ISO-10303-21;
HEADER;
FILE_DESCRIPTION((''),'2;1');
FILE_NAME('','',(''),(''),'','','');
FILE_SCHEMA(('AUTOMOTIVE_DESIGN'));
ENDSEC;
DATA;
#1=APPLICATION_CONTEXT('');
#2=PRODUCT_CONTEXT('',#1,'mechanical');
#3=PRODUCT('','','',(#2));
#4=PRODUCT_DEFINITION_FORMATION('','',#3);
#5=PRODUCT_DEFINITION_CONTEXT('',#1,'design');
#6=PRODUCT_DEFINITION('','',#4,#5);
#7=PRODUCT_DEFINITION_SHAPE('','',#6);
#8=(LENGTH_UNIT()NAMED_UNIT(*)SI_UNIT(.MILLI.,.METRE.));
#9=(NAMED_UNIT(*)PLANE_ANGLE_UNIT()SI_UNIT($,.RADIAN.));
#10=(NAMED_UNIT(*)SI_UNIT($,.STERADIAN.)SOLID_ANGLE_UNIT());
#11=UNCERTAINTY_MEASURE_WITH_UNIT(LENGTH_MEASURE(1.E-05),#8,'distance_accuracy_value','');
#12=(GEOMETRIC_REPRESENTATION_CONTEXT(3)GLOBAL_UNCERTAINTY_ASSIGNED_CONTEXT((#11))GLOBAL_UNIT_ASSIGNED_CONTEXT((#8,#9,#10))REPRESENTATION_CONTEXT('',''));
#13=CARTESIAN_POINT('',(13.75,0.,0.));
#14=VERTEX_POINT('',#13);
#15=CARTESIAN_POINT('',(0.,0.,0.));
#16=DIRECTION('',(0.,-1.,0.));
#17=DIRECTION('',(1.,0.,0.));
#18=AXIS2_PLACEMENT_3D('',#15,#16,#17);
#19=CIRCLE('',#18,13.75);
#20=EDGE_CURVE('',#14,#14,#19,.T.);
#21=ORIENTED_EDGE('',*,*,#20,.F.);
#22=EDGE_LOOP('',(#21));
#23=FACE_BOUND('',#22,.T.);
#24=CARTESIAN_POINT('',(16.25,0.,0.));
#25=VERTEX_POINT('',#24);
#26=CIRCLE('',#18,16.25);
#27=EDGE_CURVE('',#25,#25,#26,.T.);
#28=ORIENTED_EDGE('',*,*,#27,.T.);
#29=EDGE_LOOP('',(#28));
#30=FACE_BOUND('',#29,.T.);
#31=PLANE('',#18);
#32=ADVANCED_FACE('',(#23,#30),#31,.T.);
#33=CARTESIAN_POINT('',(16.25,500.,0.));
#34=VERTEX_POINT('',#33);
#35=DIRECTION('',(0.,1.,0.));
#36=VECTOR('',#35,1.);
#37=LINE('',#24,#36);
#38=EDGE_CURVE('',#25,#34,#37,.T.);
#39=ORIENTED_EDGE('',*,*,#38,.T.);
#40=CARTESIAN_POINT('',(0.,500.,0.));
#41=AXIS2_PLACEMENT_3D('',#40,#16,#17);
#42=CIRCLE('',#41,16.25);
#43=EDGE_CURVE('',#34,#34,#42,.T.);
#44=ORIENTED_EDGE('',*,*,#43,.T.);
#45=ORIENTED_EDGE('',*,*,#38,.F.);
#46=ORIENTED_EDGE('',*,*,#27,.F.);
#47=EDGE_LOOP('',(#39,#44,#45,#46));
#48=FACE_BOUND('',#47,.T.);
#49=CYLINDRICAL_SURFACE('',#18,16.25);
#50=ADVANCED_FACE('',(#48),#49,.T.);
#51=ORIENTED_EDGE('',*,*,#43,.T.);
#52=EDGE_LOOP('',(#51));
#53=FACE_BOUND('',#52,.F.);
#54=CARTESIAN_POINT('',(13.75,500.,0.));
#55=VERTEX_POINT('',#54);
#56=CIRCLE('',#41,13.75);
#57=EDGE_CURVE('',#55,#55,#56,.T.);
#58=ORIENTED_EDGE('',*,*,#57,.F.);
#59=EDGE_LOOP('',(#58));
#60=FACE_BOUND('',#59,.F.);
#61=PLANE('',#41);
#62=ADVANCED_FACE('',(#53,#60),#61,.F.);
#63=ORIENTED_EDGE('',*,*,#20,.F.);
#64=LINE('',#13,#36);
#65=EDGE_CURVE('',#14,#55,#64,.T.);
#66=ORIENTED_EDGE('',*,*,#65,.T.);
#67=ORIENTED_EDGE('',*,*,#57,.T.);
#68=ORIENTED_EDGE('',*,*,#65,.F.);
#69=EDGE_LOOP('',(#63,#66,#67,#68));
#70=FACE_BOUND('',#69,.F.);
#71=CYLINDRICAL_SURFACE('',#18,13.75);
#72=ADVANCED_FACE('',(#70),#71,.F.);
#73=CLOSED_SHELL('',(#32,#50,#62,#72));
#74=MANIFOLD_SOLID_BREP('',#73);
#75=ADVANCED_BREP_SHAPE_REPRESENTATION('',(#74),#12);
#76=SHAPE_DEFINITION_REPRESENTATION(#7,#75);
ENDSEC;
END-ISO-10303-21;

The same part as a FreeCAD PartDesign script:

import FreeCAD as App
import Part
import Sketcher
from FreeCAD import Vector


def faces_at(feature, points):
    """Names of the faces that lie closest to the given points."""
    faces = feature.Shape.Faces
    near = lambda p: min(range(len(faces)), key=lambda i: faces[i].distToShape(Part.Vertex(*p))[0])
    return sorted({f"Face{near(p) + 1}" for p in points})

doc = App.newDocument("Part")
body = doc.addObject("PartDesign::Body", "Body")

sketch1 = body.newObject("Sketcher::SketchObject", "Sketch")
sketch1.AttachmentSupport = (doc.getObject("XZ_Plane"), [""])
sketch1.MapMode = "FlatFace"
sketch1.addGeometry(Part.Circle(Vector(0, 0, 0), Vector(0, 0, 1), 16), False)
sketch1.addConstraint([
    Sketcher.Constraint("Coincident", 0, 3, -1, 1),
    Sketcher.Constraint("Diameter", 0, 32.5),
])
pad1 = body.newObject("PartDesign::Pad", "Pad")
pad1.Profile = sketch1
pad1.Length = 500
pad1.Reversed = True
doc.recompute()

thickness = body.newObject("PartDesign::Thickness", "Thickness")
thickness.Base = (pad1, faces_at(pad1, [(0, 0, 0), (0, 500, 0)]))
thickness.Value = 2.5
thickness.Reversed = True
thickness.Join = "Arc"

doc.recompute()
